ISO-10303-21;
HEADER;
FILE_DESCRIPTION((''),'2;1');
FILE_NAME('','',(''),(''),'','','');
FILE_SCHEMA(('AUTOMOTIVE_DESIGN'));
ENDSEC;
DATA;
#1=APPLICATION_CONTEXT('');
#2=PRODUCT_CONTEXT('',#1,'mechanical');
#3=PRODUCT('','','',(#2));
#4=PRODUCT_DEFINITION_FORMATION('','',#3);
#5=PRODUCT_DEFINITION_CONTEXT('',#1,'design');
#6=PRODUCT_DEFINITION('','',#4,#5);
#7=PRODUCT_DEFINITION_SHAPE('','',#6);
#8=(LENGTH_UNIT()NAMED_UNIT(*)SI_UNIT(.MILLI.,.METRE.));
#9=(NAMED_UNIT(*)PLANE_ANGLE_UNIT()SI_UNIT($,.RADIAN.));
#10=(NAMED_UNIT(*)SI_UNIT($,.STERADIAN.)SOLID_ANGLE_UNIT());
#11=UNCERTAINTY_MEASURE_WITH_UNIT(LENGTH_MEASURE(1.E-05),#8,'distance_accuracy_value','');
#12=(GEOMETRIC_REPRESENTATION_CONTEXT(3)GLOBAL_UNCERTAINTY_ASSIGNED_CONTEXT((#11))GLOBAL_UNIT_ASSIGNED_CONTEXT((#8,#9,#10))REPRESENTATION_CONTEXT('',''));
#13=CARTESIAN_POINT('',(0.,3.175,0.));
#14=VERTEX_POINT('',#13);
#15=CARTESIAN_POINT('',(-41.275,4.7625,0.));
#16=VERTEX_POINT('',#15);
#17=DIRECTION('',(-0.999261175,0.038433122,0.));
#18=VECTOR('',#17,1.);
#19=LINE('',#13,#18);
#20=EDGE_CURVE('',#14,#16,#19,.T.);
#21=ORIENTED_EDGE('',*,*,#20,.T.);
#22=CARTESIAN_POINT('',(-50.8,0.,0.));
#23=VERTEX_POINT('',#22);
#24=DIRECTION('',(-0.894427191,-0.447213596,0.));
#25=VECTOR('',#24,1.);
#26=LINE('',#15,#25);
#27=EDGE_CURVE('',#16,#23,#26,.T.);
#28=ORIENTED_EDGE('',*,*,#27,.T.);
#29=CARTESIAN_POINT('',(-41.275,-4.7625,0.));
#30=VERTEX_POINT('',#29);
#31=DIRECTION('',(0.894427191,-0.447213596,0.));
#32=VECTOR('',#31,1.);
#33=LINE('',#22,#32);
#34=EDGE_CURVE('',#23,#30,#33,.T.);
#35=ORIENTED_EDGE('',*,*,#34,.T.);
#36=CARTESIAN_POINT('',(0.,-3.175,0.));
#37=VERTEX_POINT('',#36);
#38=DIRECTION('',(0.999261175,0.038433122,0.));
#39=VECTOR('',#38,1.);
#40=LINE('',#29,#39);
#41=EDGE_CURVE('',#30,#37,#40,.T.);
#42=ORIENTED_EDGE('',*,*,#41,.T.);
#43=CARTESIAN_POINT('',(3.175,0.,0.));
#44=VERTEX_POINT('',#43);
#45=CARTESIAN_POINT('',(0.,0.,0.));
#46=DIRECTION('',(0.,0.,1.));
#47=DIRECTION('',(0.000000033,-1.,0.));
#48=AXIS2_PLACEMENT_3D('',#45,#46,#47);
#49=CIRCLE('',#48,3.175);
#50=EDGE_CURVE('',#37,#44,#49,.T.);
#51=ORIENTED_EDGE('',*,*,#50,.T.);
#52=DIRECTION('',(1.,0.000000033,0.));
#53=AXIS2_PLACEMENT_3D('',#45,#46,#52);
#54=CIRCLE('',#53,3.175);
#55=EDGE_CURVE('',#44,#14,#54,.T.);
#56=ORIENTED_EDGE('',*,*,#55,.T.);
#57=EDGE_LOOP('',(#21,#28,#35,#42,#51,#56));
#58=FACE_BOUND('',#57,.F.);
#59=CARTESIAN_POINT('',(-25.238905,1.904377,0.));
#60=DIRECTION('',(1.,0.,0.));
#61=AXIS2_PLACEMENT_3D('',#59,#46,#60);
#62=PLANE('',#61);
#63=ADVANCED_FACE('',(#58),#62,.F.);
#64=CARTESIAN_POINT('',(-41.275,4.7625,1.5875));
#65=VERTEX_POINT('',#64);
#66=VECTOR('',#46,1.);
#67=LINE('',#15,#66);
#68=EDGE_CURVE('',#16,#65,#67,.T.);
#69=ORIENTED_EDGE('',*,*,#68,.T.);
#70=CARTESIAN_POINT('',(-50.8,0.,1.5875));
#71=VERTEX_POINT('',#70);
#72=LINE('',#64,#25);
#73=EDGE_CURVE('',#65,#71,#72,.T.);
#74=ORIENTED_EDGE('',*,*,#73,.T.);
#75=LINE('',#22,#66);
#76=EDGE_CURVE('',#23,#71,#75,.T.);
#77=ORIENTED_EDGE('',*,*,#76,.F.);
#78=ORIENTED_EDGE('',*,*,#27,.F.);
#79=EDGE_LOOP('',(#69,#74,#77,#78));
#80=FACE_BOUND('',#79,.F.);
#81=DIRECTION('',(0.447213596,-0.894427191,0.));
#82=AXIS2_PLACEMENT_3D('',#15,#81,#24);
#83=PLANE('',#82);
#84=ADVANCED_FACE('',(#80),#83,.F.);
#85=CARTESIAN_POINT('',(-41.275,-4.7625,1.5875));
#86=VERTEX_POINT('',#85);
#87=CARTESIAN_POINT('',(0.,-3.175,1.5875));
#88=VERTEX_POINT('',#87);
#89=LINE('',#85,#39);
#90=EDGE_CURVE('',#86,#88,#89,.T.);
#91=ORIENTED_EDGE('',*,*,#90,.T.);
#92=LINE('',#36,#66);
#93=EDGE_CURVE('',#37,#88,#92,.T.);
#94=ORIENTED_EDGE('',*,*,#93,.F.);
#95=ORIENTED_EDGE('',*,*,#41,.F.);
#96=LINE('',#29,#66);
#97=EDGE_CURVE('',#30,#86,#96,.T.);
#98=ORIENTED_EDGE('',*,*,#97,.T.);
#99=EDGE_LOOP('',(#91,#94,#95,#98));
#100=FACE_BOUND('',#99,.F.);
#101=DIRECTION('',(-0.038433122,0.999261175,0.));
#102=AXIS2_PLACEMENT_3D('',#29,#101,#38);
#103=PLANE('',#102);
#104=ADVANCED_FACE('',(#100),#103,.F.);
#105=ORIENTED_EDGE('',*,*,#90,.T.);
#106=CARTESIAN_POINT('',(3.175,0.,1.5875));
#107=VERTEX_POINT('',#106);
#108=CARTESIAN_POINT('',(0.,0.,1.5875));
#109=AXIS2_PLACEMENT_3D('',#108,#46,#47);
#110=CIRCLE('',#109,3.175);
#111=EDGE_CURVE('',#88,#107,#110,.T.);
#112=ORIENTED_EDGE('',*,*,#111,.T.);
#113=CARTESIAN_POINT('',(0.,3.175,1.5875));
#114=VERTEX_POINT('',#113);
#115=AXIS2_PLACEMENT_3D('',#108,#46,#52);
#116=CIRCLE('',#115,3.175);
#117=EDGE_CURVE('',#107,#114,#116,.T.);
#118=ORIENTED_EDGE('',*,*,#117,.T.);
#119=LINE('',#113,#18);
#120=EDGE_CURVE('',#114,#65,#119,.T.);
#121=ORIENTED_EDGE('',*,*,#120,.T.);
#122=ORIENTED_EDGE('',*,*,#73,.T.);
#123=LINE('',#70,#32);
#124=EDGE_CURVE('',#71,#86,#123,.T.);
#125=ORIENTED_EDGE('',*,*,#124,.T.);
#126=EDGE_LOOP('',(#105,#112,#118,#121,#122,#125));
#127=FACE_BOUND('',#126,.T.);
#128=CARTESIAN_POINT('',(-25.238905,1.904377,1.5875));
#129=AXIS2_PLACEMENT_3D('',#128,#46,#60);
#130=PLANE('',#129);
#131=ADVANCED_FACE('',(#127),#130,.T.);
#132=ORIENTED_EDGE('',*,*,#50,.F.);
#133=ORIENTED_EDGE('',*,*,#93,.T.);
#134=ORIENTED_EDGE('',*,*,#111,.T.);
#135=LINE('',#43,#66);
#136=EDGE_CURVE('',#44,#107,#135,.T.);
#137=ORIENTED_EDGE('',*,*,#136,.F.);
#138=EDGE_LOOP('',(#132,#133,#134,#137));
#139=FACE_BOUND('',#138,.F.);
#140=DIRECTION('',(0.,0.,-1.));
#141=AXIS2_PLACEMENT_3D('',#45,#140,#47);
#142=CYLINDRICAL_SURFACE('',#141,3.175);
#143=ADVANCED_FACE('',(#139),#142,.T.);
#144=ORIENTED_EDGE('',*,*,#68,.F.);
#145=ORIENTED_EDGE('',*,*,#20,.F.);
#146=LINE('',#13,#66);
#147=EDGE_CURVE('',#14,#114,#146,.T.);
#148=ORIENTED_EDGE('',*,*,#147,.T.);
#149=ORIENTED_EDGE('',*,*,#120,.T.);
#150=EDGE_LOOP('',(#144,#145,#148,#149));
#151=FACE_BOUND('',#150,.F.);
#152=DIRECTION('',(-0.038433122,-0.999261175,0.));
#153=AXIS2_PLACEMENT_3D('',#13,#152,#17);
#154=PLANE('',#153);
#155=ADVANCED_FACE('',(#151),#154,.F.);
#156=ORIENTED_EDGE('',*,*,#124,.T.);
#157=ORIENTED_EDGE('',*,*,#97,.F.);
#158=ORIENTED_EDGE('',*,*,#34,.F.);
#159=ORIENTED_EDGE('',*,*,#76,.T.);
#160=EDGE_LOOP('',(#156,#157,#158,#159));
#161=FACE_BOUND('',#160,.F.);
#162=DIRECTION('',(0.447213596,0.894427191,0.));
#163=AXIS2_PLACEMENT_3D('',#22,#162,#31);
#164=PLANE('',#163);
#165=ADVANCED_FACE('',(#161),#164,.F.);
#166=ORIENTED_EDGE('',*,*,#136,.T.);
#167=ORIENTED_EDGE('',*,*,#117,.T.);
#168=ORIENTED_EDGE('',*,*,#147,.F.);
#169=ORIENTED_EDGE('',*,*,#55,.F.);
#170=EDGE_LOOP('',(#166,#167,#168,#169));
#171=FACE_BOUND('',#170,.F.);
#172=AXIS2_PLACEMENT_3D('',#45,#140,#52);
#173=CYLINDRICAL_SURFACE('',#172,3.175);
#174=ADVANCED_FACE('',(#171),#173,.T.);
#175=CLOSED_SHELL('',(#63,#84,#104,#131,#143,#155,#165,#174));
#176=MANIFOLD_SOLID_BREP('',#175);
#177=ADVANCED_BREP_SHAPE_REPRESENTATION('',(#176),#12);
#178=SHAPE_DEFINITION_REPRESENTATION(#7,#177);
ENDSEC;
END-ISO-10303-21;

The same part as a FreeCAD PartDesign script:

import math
import FreeCAD as App
import Part
import Sketcher
Q = App.Units.Quantity

doc = App.newDocument("Part")
body = doc.addObject("PartDesign::Body", "Body")

# Sketch on XY plane
sketch1 = body.newObject("Sketcher::SketchObject", "Sketch")
sketch1.AttachmentSupport = (doc.getObject("XY_Plane"), [""])
sketch1.MapMode = "FlatFace"
sketch1.addGeometry(Part.LineSegment(App.Vector(0, 3.2, 0), App.Vector(-41.3, 4.8, 0)), False)
sketch1.addGeometry(Part.LineSegment(App.Vector(-41.3, 4.8, 0), App.Vector(-50.8, 0, 0)), False)
sketch1.addGeometry(Part.LineSegment(App.Vector(-50.8, 0, 0), App.Vector(-41.3, -4.8, 0)), False)
sketch1.addGeometry(Part.LineSegment(App.Vector(-41.3, -4.8, 0), App.Vector(0, -3.2, 0)), False)
sketch1.addGeometry(Part.ArcOfCircle(Part.Circle(App.Vector(0, 0, 0), App.Vector(0, 0, 1), 3.2), math.radians(-90), math.radians(0)), False)
sketch1.addGeometry(Part.ArcOfCircle(Part.Circle(App.Vector(0, 0, 0), App.Vector(0, 0, 1), 3.2), math.radians(0), math.radians(90)), False)
sketch1.addConstraint(Sketcher.Constraint("Coincident", 0, 2, 1, 1))
sketch1.addConstraint(Sketcher.Constraint("Coincident", 1, 2, 2, 1))
sketch1.addConstraint(Sketcher.Constraint("Coincident", 2, 2, 3, 1))
sketch1.addConstraint(Sketcher.Constraint("Coincident", 3, 2, 4, 1))
sketch1.addConstraint(Sketcher.Constraint("Tangent", 4, 2, 5, 1))
sketch1.addConstraint(Sketcher.Constraint("Coincident", 5, 2, 0, 1))
sketch1.addConstraint(Sketcher.Constraint("Coincident", 4, 3, -1, 1))
sketch1.addConstraint(Sketcher.Constraint("Equal", 4, 5))
sketch1.addConstraint(Sketcher.Constraint("Symmetric", 0, 2, 2, 2, -1))
sketch1.addConstraint(Sketcher.Constraint("PointOnObject", 1, 2, -1))
sketch1.addConstraint(Sketcher.Constraint("PointOnObject", 3, 2, -2))
sketch1.addConstraint(Sketcher.Constraint("PointOnObject", 4, 2, -1))
sketch1.addConstraint(Sketcher.Constraint("PointOnObject", 5, 2, -2))
sketch1.addConstraint(Sketcher.Constraint("DistanceX", 1, 2, -1, 1, Q("2 in")))
sketch1.addConstraint(Sketcher.Constraint("Radius", 4, Q("0.125 in")))
sketch1.addConstraint(Sketcher.Constraint("DistanceX", 0, 2, 4, 2, Q("1.75 in")))
sketch1.addConstraint(Sketcher.Constraint("DistanceY", -1, 1, 0, 2, Q("0.1875 in")))
pad1 = body.newObject("PartDesign::Pad", "Pad")
pad1.Profile = sketch1
pad1.Length = Q("0.0625 in")
body2 = doc.addObject("PartDesign::Body", "Body001")
doc.recompute()

body2.BaseFeature = body
doc.recompute()
body.Visibility = False

doc.recompute()
